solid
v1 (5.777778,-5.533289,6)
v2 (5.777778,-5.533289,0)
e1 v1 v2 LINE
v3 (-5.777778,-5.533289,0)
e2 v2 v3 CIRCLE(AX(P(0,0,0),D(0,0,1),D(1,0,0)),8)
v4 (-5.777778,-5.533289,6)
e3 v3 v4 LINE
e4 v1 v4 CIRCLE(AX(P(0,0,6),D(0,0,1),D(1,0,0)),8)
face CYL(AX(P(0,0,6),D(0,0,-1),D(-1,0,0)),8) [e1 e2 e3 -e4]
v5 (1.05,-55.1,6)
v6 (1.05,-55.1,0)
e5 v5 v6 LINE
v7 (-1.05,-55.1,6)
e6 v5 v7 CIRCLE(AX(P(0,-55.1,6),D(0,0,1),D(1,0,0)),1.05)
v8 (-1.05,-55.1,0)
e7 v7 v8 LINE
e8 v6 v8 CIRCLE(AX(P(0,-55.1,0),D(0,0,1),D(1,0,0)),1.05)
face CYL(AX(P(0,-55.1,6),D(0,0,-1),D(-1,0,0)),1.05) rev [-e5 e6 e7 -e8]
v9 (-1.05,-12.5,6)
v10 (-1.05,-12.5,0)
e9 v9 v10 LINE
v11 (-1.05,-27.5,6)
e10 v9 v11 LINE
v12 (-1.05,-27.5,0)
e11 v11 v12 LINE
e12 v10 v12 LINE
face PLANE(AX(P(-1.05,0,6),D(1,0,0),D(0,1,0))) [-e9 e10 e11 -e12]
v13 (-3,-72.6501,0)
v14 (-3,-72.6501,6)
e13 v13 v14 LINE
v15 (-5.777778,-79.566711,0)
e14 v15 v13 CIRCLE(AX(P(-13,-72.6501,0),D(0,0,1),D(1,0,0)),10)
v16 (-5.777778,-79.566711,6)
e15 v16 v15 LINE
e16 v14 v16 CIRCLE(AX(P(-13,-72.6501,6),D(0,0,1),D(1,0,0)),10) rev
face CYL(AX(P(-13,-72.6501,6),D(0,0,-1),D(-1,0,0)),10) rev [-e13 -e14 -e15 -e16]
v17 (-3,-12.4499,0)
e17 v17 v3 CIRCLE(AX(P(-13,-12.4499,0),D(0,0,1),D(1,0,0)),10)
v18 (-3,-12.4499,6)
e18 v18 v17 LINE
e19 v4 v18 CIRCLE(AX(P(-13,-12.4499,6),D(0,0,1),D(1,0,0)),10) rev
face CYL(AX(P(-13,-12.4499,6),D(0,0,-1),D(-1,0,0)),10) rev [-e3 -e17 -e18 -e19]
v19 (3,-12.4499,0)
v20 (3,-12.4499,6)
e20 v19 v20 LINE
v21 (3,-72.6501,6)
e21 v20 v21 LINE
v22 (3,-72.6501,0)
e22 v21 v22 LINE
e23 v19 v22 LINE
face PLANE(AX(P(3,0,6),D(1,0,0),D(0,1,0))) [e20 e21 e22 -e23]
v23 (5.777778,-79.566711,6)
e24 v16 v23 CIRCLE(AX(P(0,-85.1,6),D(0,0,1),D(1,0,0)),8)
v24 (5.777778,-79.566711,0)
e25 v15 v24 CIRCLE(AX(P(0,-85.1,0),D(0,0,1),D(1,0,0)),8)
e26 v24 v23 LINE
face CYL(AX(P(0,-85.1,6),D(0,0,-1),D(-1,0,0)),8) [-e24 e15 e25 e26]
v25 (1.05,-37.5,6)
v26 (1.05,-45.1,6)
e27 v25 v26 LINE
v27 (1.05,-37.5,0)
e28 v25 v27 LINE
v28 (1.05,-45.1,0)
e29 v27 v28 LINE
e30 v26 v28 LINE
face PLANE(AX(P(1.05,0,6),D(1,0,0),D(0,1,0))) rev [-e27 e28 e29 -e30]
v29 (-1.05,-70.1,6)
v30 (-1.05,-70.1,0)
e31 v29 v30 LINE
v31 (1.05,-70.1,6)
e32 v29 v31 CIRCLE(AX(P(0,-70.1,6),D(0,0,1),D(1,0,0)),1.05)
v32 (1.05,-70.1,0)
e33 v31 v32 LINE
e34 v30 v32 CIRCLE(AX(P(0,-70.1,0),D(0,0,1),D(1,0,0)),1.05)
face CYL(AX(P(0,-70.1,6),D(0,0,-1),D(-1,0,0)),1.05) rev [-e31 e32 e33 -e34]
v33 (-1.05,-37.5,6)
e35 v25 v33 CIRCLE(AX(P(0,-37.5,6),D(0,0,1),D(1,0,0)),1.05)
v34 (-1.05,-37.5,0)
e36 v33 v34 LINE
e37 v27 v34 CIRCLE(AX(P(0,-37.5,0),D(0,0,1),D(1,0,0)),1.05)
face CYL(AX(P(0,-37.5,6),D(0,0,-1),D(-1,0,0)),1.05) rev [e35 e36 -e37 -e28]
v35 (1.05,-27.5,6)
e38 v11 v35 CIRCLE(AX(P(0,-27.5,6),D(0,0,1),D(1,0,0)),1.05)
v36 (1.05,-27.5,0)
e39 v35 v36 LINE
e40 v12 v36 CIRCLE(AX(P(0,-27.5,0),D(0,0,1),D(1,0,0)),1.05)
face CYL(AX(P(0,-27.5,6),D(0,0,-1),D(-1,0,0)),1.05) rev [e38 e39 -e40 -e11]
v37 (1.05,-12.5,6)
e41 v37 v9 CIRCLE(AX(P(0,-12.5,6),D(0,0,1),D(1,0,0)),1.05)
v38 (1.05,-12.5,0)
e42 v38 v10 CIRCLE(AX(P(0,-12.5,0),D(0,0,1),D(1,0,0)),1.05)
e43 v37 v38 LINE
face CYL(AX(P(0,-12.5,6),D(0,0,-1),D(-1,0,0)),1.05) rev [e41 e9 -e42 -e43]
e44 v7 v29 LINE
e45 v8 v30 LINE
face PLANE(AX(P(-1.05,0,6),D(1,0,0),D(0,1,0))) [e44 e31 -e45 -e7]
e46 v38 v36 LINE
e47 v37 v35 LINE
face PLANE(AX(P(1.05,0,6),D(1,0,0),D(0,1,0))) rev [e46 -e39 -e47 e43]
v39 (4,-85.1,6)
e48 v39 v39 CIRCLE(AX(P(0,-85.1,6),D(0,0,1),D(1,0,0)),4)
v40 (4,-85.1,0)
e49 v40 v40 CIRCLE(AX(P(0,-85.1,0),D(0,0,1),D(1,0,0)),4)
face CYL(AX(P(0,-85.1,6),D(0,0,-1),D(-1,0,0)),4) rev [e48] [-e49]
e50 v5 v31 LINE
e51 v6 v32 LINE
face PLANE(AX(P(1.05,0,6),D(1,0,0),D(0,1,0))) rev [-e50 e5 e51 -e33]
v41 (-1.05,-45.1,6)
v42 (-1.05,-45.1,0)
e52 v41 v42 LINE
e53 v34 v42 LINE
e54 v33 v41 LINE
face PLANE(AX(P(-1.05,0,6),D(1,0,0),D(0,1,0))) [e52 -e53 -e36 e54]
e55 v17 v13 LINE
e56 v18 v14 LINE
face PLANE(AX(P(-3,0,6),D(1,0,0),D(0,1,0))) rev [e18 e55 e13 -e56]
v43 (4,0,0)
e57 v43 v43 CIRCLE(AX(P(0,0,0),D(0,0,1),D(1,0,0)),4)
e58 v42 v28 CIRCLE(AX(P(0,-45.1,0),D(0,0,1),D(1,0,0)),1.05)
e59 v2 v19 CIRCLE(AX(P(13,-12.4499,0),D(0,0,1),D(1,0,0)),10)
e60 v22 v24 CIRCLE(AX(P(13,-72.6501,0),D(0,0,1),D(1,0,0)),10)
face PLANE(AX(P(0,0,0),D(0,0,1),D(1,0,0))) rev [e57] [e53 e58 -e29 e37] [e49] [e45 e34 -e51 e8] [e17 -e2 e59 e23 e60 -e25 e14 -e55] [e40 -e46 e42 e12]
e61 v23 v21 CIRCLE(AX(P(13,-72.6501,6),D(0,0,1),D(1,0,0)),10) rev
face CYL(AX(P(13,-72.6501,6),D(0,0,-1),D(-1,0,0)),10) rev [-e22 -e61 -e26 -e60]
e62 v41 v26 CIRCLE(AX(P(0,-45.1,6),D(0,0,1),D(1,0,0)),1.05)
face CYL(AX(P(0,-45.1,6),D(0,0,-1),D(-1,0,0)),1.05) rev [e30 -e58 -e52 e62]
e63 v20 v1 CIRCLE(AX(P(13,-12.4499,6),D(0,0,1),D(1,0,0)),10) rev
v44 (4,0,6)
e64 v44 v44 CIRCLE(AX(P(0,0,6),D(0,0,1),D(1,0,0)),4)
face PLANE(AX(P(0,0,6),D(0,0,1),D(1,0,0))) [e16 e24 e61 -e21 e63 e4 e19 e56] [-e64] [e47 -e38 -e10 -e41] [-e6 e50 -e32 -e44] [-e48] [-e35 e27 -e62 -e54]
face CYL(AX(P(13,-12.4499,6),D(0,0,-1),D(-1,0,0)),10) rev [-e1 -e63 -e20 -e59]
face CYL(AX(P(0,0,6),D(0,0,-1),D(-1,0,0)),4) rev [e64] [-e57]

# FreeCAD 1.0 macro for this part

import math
import FreeCAD as App
import Part
import Sketcher
from FreeCAD import Vector


def edges_at(feature, points):
    """Names of the edges that pass closest to the given points."""
    edges = feature.Shape.Edges
    near = lambda p: min(range(len(edges)), key=lambda i: edges[i].distToShape(Part.Vertex(*p))[0])
    return sorted({f"Edge{near(p) + 1}" for p in points})

doc = App.newDocument("Part")
body = doc.addObject("PartDesign::Body", "Body")

sketch1 = body.newObject("Sketcher::SketchObject", "Sketch")
sketch1.AttachmentSupport = (doc.getObject("XY_Plane"), [""])
sketch1.MapMode = "FlatFace"
sketch1.addGeometry([
    Part.LineSegment(Vector(3, -77.683802, 0), Vector(3, -7.416198, 0)),
    Part.ArcOfCircle(Part.Circle(Vector(0, 0, 0), Vector(0, 0, 1), 8), math.radians(-67.975687), math.radians(247.975687)),
    Part.LineSegment(Vector(-3, -7.416198, 0), Vector(-3, -77.683802, 0)),
    Part.ArcOfCircle(Part.Circle(Vector(0, -85.1, 0), Vector(0, 0, 1), 8), math.radians(112.024313), math.radians(427.975687)),
    Part.LineSegment(Vector(-1.05, -70.1, 0), Vector(-1.05, -55.1, 0)),
    Part.ArcOfCircle(Part.Circle(Vector(0, -55.1, 0), Vector(0, 0, 1), 1.05), math.radians(0), math.radians(180)),
    Part.LineSegment(Vector(1.05, -55.1, 0), Vector(1.05, -70.1, 0)),
    Part.ArcOfCircle(Part.Circle(Vector(0, -70.1, 0), Vector(0, 0, 1), 1.05), math.radians(180), math.radians(360)),
    Part.LineSegment(Vector(-1.05, -45.1, 0), Vector(-1.05, -37.5, 0)),
    Part.ArcOfCircle(Part.Circle(Vector(0, -37.5, 0), Vector(0, 0, 1), 1.05), math.radians(0), math.radians(180)),
    Part.LineSegment(Vector(1.05, -37.5, 0), Vector(1.05, -45.1, 0)),
    Part.ArcOfCircle(Part.Circle(Vector(0, -45.1, 0), Vector(0, 0, 1), 1.05), math.radians(180), math.radians(360)),
    Part.LineSegment(Vector(-1.05, -27.5, 0), Vector(-1.05, -12.5, 0)),
    Part.ArcOfCircle(Part.Circle(Vector(0, -12.5, 0), Vector(0, 0, 1), 1.05), math.radians(0), math.radians(180)),
    Part.LineSegment(Vector(1.05, -12.5, 0), Vector(1.05, -27.5, 0)),
    Part.ArcOfCircle(Part.Circle(Vector(0, -27.5, 0), Vector(0, 0, 1), 1.05), math.radians(180), math.radians(360)),
    Part.Circle(Vector(0, 0, 0), Vector(0, 0, 1), 4),
    Part.Circle(Vector(0, -85.1, 0), Vector(0, 0, 1), 4),
], False)
sketch1.addConstraint([
    Sketcher.Constraint("Coincident", 0, 2, 1, 1),
    Sketcher.Constraint("Coincident", 1, 2, 2, 1),
    Sketcher.Constraint("Coincident", 2, 2, 3, 1),
    Sketcher.Constraint("Coincident", 3, 2, 0, 1),
    Sketcher.Constraint("Tangent", 4, 2, 5, 2),
    Sketcher.Constraint("Tangent", 5, 1, 6, 1),
    Sketcher.Constraint("Tangent", 6, 2, 7, 2),
    Sketcher.Constraint("Tangent", 7, 1, 4, 1),
    Sketcher.Constraint("Tangent", 8, 2, 9, 2),
    Sketcher.Constraint("Tangent", 9, 1, 10, 1),
    Sketcher.Constraint("Tangent", 10, 2, 11, 2),
    Sketcher.Constraint("Tangent", 11, 1, 8, 1),
    Sketcher.Constraint("Tangent", 12, 2, 13, 2),
    Sketcher.Constraint("Tangent", 13, 1, 14, 1),
    Sketcher.Constraint("Tangent", 14, 2, 15, 2),
    Sketcher.Constraint("Tangent", 15, 1, 12, 1),
    Sketcher.Constraint("Vertical", 0),
    Sketcher.Constraint("Vertical", 2),
    Sketcher.Constraint("Vertical", 4),
    Sketcher.Constraint("Vertical", 6),
    Sketcher.Constraint("Vertical", 8),
    Sketcher.Constraint("Vertical", 10),
    Sketcher.Constraint("Vertical", 12),
    Sketcher.Constraint("Vertical", 14),
    Sketcher.Constraint("Coincident", 1, 3, -1, 1),
    Sketcher.Constraint("Coincident", 16, 3, -1, 1),
    Sketcher.Constraint("Coincident", 17, 3, 3, 3),
    Sketcher.Constraint("Equal", 1, 3),
    Sketcher.Constraint("Equal", 7, 9),
    Sketcher.Constraint("Equal", 11, 13),
    Sketcher.Constraint("Equal", 16, 17),
    Sketcher.Constraint("Symmetric", 2, 2, 3, 2, -2),
    Sketcher.Constraint("PointOnObject", 5, 3, -2),
    Sketcher.Constraint("PointOnObject", 9, 3, -2),
    Sketcher.Constraint("PointOnObject", 13, 3, -2),
    Sketcher.Constraint("Equal", 6, 12),
    Sketcher.Constraint("Diameter", 16, 8.0),
    Sketcher.Constraint("Radius", 1, 8.0),
    Sketcher.Constraint("DistanceY", 4, 1, 4, 2, 15.0),
    Sketcher.Constraint("Radius", 5, 1.05),
    Sketcher.Constraint("DistanceY", 8, 1, 8, 2, 7.6),
    Sketcher.Constraint("DistanceX", -1, 1, 0, 2, 3.0),
    Sketcher.Constraint("DistanceY", 3, 3, 5, 3, 30.0),
    Sketcher.Constraint("DistanceY", 5, 3, 11, 3, 10.0),
    Sketcher.Constraint("DistanceY", 9, 3, 13, 3, 25.0),
    Sketcher.Constraint("DistanceY", 3, 3, -1, 1, 85.1),
])
pad1 = body.newObject("PartDesign::Pad", "Pad")
pad1.Profile = sketch1
pad1.Length = 6
doc.recompute()

fillet = body.newObject("PartDesign::Fillet", "Fillet")
fillet.Base = (pad1, edges_at(pad1, [
    (3, -77.684, 3),
    (-3, -77.684, 3),
    (-3, -7.416, 3),
    (3, -7.416, 3),
]))
fillet.Radius = 10

doc.recompute()
